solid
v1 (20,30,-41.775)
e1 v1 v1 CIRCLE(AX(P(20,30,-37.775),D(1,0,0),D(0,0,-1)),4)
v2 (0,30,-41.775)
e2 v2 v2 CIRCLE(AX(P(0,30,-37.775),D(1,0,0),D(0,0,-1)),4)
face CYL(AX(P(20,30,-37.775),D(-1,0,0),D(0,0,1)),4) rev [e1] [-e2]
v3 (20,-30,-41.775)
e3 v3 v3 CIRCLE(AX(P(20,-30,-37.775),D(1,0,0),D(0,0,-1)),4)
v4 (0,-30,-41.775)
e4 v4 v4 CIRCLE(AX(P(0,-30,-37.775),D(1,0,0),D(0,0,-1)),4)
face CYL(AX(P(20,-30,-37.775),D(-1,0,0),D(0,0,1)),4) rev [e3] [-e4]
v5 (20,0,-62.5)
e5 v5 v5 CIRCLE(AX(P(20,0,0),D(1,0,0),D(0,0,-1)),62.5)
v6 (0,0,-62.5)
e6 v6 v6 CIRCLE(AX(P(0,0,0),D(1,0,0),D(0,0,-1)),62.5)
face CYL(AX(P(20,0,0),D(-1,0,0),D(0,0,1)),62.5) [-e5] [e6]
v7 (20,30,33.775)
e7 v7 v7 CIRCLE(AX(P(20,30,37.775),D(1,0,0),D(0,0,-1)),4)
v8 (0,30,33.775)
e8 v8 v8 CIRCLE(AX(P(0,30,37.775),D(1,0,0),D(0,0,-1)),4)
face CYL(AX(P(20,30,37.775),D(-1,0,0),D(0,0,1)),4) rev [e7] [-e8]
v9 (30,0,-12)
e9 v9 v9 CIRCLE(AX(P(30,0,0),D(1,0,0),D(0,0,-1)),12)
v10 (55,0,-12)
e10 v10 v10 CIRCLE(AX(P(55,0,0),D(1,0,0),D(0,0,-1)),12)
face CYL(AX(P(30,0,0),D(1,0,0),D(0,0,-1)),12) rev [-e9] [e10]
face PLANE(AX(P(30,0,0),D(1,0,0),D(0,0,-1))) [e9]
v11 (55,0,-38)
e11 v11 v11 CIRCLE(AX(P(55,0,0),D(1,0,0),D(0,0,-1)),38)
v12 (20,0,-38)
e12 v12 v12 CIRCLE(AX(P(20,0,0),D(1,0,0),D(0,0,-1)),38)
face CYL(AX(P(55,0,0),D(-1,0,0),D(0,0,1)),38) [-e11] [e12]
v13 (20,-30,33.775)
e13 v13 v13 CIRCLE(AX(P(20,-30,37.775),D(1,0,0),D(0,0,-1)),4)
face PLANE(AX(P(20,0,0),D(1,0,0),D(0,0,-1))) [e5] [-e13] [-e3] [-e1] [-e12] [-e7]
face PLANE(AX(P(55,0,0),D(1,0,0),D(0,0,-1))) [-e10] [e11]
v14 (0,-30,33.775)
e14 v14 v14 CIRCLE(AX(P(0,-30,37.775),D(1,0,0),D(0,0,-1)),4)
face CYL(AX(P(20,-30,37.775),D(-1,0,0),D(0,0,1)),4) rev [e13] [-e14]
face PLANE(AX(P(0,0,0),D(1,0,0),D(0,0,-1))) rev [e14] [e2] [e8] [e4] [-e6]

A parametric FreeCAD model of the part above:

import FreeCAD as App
import Part
import Sketcher

V = App.Vector

doc = App.newDocument("Part")
params = doc.addObject("Spreadsheet::Sheet", "Params")
for row, (alias, value) in enumerate([
    ("sketch1_diameter", "125 mm"),
    ("sketch1_diameter2", "8 mm"),
    ("pad1_length", "20 mm"),
    ("sketch2_diameter", "76 mm"),
    ("pad2_length", "35 mm"),
    ("sketch3_diameter", "24 mm"),
    ("pocket1_length", "25 mm"),
], start=1):
    params.set(f"A{row}", alias)
    params.set(f"B{row}", "=" + value)
    params.setAlias(f"B{row}", alias)

body = doc.addObject("PartDesign::Body", "Body")

# Sketch on YZ plane
sketch1 = body.newObject("Sketcher::SketchObject", "Sketch")
sketch1.AttachmentSupport = (doc.getObject("YZ_Plane"), [""])
sketch1.MapMode = "FlatFace"
sketch1.addGeometry(Part.Circle(V(0, 0, 0), V(0, 0, 1), 62.5), False)
sketch1.addGeometry(Part.Circle(V(-30, 37.8, 0), V(0, 0, 1), 4), False)
sketch1.addGeometry(Part.Circle(V(-30, -37.8, 0), V(0, 0, 1), 4), False)
sketch1.addGeometry(Part.Circle(V(30, 37.8, 0), V(0, 0, 1), 4), False)
sketch1.addGeometry(Part.Circle(V(30, -37.8, 0), V(0, 0, 1), 4), False)
sketch1.addConstraint(Sketcher.Constraint("Coincident", 0, 3, -1, 1))
sketch1.addConstraint(Sketcher.Constraint("Equal", 1, 2))
sketch1.addConstraint(Sketcher.Constraint("Equal", 2, 3))
sketch1.addConstraint(Sketcher.Constraint("Equal", 3, 4))
sketch1.addConstraint(Sketcher.Constraint("Symmetric", 2, 3, 3, 3, -1, 1))
sketch1.addConstraint(Sketcher.Constraint("Symmetric", 1, 3, 4, 3, -1, 1))
sketch1.addConstraint(Sketcher.Constraint("Symmetric", 1, 3, 3, 3, -2))
sketch1.addConstraint(Sketcher.Constraint("Diameter", 0, 125.0))
sketch1.addConstraint(Sketcher.Constraint("Diameter", 1, 8.0))
sketch1.addConstraint(Sketcher.Constraint("DistanceX", 1, 3, -1, 1, 30.0))
sketch1.addConstraint(Sketcher.Constraint("DistanceY", 2, 3, 1, 3, 75.55))
sketch1.setExpression("Constraints[7]", "Params.sketch1_diameter")
sketch1.setExpression("Constraints[8]", "Params.sketch1_diameter2")
pad1 = body.newObject("PartDesign::Pad", "Pad")
pad1.Profile = sketch1
pad1.setExpression("Length", "Params.pad1_length")

# Sketch on YZ plane
sketch2 = body.newObject("Sketcher::SketchObject", "Sketch001")
sketch2.AttachmentSupport = (doc.getObject("YZ_Plane"), [""])
sketch2.MapMode = "FlatFace"
sketch2.AttachmentOffset = App.Placement(V(0, 0, 20), App.Rotation())
sketch2.addGeometry(Part.Circle(V(0, 0, 0), V(0, 0, 1), 38), False)
sketch2.addConstraint(Sketcher.Constraint("Coincident", 0, 3, -1, 1))
sketch2.addConstraint(Sketcher.Constraint("Diameter", 0, 76.0))
sketch2.setExpression("Constraints[1]", "Params.sketch2_diameter")
pad2 = body.newObject("PartDesign::Pad", "Pad001")
pad2.Profile = sketch2
pad2.setExpression("Length", "Params.pad2_length")

# Sketch on YZ plane
sketch3 = body.newObject("Sketcher::SketchObject", "Sketch002")
sketch3.AttachmentSupport = (doc.getObject("YZ_Plane"), [""])
sketch3.MapMode = "FlatFace"
sketch3.AttachmentOffset = App.Placement(V(0, 0, 55), App.Rotation())
sketch3.addGeometry(Part.Circle(V(0, 0, 0), V(0, 0, 1), 12), False)
sketch3.addConstraint(Sketcher.Constraint("Coincident", 0, 3, -1, 1))
sketch3.addConstraint(Sketcher.Constraint("Diameter", 0, 24.0))
sketch3.setExpression("Constraints[1]", "Params.sketch3_diameter")
pocket1 = body.newObject("PartDesign::Pocket", "Pocket")
pocket1.Profile = sketch3
pocket1.setExpression("Length", "Params.pocket1_length")

doc.recompute()
